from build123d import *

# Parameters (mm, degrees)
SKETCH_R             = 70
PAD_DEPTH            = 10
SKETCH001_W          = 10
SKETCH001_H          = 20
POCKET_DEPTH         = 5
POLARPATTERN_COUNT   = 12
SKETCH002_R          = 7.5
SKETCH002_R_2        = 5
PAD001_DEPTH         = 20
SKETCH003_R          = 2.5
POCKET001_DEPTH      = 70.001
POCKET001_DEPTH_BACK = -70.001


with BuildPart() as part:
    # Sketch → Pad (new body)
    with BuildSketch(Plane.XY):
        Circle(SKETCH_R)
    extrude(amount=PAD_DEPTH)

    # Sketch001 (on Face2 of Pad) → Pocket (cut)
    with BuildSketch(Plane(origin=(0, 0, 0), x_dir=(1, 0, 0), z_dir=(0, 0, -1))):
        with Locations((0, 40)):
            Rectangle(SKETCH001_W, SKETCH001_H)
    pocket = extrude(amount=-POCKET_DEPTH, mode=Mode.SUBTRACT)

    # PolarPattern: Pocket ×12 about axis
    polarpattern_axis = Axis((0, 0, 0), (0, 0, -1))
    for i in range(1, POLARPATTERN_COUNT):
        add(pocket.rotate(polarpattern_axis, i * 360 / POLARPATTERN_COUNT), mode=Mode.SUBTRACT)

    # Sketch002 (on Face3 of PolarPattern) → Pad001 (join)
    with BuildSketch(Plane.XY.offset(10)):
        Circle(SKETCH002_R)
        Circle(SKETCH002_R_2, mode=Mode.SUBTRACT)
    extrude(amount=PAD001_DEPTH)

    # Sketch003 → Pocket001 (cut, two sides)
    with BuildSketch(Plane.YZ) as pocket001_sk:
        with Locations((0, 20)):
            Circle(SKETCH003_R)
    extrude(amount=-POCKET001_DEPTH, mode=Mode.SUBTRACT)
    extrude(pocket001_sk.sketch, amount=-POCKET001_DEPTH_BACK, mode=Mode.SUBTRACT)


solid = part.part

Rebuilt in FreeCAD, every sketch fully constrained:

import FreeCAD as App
import Part
import Sketcher
from FreeCAD import Vector
Q = App.Units.Quantity


def add_polygon(sketch, points):
    """Adds a closed chain of lines whose ends are joined by coincident constraints."""
    first, n = sketch.GeometryCount, len(points)
    for a, b in zip(points, points[1:] + points[:1]):
        sketch.addGeometry(Part.LineSegment(App.Vector(*a, 0), App.Vector(*b, 0)), False)
    for i in range(n):
        sketch.addConstraint(Sketcher.Constraint("Coincident", first + i, 2, first + (i + 1) % n, 1))

doc = App.newDocument("Part")
params = doc.addObject("Spreadsheet::Sheet", "Params")
for row, (alias, value) in enumerate([
    ("sketch1_diameter", "140 mm"),
    ("pad1_length", "10 mm"),
    ("sketch2_width", "10 mm"),
    ("sketch2_height", "20 mm"),
    ("pocket1_length", "5 mm"),
    ("sketch3_diameter", "15 mm"),
    ("sketch3_diameter2", "10 mm"),
    ("pad2_length", "20 mm"),
    ("sketch4_diameter", "5 mm"),
], start=1):
    params.set(f"A{row}", alias)
    params.set(f"B{row}", "=" + value)
    params.setAlias(f"B{row}", alias)

body = doc.addObject("PartDesign::Body", "Body")

sketch1 = body.newObject("Sketcher::SketchObject", "Sketch")
sketch1.AttachmentSupport = (doc.getObject("XY_Plane"), [""])
sketch1.MapMode = "FlatFace"
sketch1.addGeometry(Part.Circle(Vector(0, 0, 0), Vector(0, 0, 1), 70), False)
sketch1.addConstraint(Sketcher.Constraint("Coincident", 0, 3, -1, 1))
sketch1.addConstraint(Sketcher.Constraint("Diameter", 0, Q("140 mm")))
sketch1.setExpression("Constraints[1]", "Params.sketch1_diameter")
pad1 = body.newObject("PartDesign::Pad", "Pad")
pad1.Profile = sketch1
pad1.setExpression("Length", "Params.pad1_length")

sketch2 = body.newObject("Sketcher::SketchObject", "Sketch001")
sketch2.AttachmentSupport = (doc.getObject("XY_Plane"), [""])
sketch2.MapMode = "FlatFace"
add_polygon(sketch2, [(-5, -50), (-5, -30), (5, -30), (5, -50)])
sketch2.addConstraint(Sketcher.Constraint("Vertical", 0))
sketch2.addConstraint(Sketcher.Constraint("Horizontal", 1))
sketch2.addConstraint(Sketcher.Constraint("Vertical", 2))
sketch2.addConstraint(Sketcher.Constraint("Horizontal", 3))
sketch2.addConstraint(Sketcher.Constraint("DistanceX", 1, 1, 1, 2, Q("10 mm")))
sketch2.addConstraint(Sketcher.Constraint("DistanceY", 0, 1, 0, 2, Q("20 mm")))
sketch2.addConstraint(Sketcher.Constraint("DistanceX", 0, 2, -1, 1, Q("5 mm")))
sketch2.addConstraint(Sketcher.Constraint("DistanceY", 0, 2, -1, 1, Q("30 mm")))
sketch2.setExpression("Constraints[8]", "Params.sketch2_width")
sketch2.setExpression("Constraints[9]", "Params.sketch2_height")
pocket1 = body.newObject("PartDesign::Pocket", "Pocket")
pocket1.Profile = sketch2
pocket1.setExpression("Length", "Params.pocket1_length")
pocket1.Reversed = True
doc.recompute()

polarpattern = body.newObject("PartDesign::PolarPattern", "PolarPattern")
polarpattern.Originals = [pocket1]
polarpattern.Axis = (doc.getObject("Z_Axis"), [""])
polarpattern.Angle = 360
polarpattern.Occurrences = 12
body.Tip = polarpattern

sketch3 = body.newObject("Sketcher::SketchObject", "Sketch002")
sketch3.AttachmentSupport = (doc.getObject("XY_Plane"), [""])
sketch3.MapMode = "FlatFace"
sketch3.AttachmentOffset = App.Placement(Vector(0, 0, 10), App.Rotation())
sketch3.addGeometry(Part.Circle(Vector(0, 0, 0), Vector(0, 0, 1), 8), False)
sketch3.addGeometry(Part.Circle(Vector(0, 0, 0), Vector(0, 0, 1), 5), False)
sketch3.addConstraint(Sketcher.Constraint("Coincident", 0, 3, -1, 1))
sketch3.addConstraint(Sketcher.Constraint("Coincident", 1, 3, -1, 1))
sketch3.addConstraint(Sketcher.Constraint("Diameter", 0, Q("15 mm")))
sketch3.addConstraint(Sketcher.Constraint("Diameter", 1, Q("10 mm")))
sketch3.setExpression("Constraints[2]", "Params.sketch3_diameter")
sketch3.setExpression("Constraints[3]", "Params.sketch3_diameter2")
pad2 = body.newObject("PartDesign::Pad", "Pad001")
pad2.Profile = sketch3
pad2.setExpression("Length", "Params.pad2_length")

sketch4 = body.newObject("Sketcher::SketchObject", "Sketch003")
sketch4.AttachmentSupport = (doc.getObject("YZ_Plane"), [""])
sketch4.MapMode = "FlatFace"
sketch4.addGeometry(Part.Circle(Vector(0, 20, 0), Vector(0, 0, 1), 2.5), False)
sketch4.addConstraint(Sketcher.Constraint("PointOnObject", 0, 3, -2))
sketch4.addConstraint(Sketcher.Constraint("Diameter", 0, Q("5 mm")))
sketch4.addConstraint(Sketcher.Constraint("DistanceY", -1, 1, 0, 3, Q("20 mm")))
sketch4.setExpression("Constraints[1]", "Params.sketch4_diameter")
pocket2 = body.newObject("PartDesign::Pocket", "Pocket001")
pocket2.Profile = sketch4
pocket2.Type = "ThroughAll"
pocket2.Midplane = True

doc.recompute()
